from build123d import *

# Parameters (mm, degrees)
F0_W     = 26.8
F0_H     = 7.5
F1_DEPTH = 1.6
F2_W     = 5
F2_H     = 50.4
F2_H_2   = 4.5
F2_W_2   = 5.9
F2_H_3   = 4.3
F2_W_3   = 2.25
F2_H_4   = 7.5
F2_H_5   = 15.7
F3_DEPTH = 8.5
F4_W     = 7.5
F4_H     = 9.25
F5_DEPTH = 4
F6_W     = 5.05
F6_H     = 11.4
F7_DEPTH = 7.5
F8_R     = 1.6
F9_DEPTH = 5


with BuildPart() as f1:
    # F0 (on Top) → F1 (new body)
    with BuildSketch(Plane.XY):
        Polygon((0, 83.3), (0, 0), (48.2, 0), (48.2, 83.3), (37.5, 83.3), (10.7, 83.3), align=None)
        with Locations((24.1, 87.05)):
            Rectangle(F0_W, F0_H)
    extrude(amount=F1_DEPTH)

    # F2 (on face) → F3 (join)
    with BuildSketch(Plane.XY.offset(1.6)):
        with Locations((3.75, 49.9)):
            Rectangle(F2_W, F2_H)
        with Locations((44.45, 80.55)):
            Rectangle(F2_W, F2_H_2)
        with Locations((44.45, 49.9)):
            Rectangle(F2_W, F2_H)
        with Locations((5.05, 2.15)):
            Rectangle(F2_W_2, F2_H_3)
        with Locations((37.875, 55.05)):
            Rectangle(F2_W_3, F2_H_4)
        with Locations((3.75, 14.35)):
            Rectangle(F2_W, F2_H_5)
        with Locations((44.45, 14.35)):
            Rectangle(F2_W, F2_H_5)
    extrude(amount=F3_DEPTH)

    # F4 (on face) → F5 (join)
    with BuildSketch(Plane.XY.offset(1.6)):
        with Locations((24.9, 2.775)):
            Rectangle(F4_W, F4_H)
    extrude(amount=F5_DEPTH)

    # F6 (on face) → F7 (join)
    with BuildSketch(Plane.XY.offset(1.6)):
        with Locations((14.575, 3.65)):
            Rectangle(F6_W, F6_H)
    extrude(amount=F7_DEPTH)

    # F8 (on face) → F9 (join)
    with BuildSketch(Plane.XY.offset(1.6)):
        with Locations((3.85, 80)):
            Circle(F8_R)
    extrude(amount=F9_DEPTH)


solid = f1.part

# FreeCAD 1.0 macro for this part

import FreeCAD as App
import Part
import Sketcher
from FreeCAD import Vector
Q = App.Units.Quantity

doc = App.newDocument("Part")
params = doc.addObject("Spreadsheet::Sheet", "Params")
for row, (alias, value) in enumerate([
    ("sketch1_width", "48.2 mm"),
    ("sketch1_width2", "10.7 mm"),
    ("sketch1_height", "83.3 mm"),
    ("sketch1_height2", "7.5 mm"),
    ("pad1_length", "1.6 mm"),
    ("sketch2_width", "5 mm"),
    ("sketch2_width2", "5.9 mm"),
    ("sketch2_height", "50.4 mm"),
    ("sketch2_height2", "4.5 mm"),
    ("sketch2_height3", "4.3 mm"),
    ("pad2_length", "8.5 mm"),
    ("sketch3_width", "7.5 mm"),
    ("sketch3_height", "9.25 mm"),
    ("pad3_length", "4 mm"),
    ("sketch4_height", "11.4 mm"),
    ("sketch4_width", "5.05 mm"),
    ("pad4_length", "7.5 mm"),
    ("sketch5_diameter", "3.2 mm"),
    ("pad5_length", "5 mm"),
], start=1):
    params.set(f"A{row}", alias)
    params.set(f"B{row}", "=" + value)
    params.setAlias(f"B{row}", alias)

body = doc.addObject("PartDesign::Body", "Body")

# Sketch on XY plane
sketch1 = body.newObject("Sketcher::SketchObject", "Sketch")
sketch1.AttachmentSupport = (doc.getObject("XY_Plane"), [""])
sketch1.MapMode = "FlatFace"
sketch1.addGeometry(Part.LineSegment(Vector(0, 83, 0), Vector(0, 0, 0)), False)
sketch1.addGeometry(Part.LineSegment(Vector(0, 0, 0), Vector(48, 0, 0)), False)
sketch1.addGeometry(Part.LineSegment(Vector(48, 0, 0), Vector(48, 83, 0)), False)
sketch1.addGeometry(Part.LineSegment(Vector(48, 83, 0), Vector(38, 83, 0)), False)
sketch1.addGeometry(Part.LineSegment(Vector(38, 83, 0), Vector(38, 91, 0)), False)
sketch1.addGeometry(Part.LineSegment(Vector(38, 91, 0), Vector(11, 91, 0)), False)
sketch1.addGeometry(Part.LineSegment(Vector(11, 91, 0), Vector(11, 83, 0)), False)
sketch1.addGeometry(Part.LineSegment(Vector(11, 83, 0), Vector(0, 83, 0)), False)
sketch1.addConstraint(Sketcher.Constraint("Coincident", 0, 2, 1, 1))
sketch1.addConstraint(Sketcher.Constraint("Coincident", 1, 2, 2, 1))
sketch1.addConstraint(Sketcher.Constraint("Coincident", 2, 2, 3, 1))
sketch1.addConstraint(Sketcher.Constraint("Coincident", 3, 2, 4, 1))
sketch1.addConstraint(Sketcher.Constraint("Coincident", 4, 2, 5, 1))
sketch1.addConstraint(Sketcher.Constraint("Coincident", 5, 2, 6, 1))
sketch1.addConstraint(Sketcher.Constraint("Coincident", 6, 2, 7, 1))
sketch1.addConstraint(Sketcher.Constraint("Coincident", 7, 2, 0, 1))
sketch1.addConstraint(Sketcher.Constraint("Vertical", 0))
sketch1.addConstraint(Sketcher.Constraint("Horizontal", 1))
sketch1.addConstraint(Sketcher.Constraint("Vertical", 2))
sketch1.addConstraint(Sketcher.Constraint("Horizontal", 3))
sketch1.addConstraint(Sketcher.Constraint("Vertical", 4))
sketch1.addConstraint(Sketcher.Constraint("Horizontal", 5))
sketch1.addConstraint(Sketcher.Constraint("Vertical", 6))
sketch1.addConstraint(Sketcher.Constraint("Horizontal", 7))
sketch1.addConstraint(Sketcher.Constraint("Coincident", 0, 2, -1, 1))
sketch1.addConstraint(Sketcher.Constraint("Horizontal", 3, 2, 6, 2))
sketch1.addConstraint(Sketcher.Constraint("Equal", 3, 7))
sketch1.addConstraint(Sketcher.Constraint("DistanceX", 1, 1, 1, 2, Q("48.2 mm")))
sketch1.addConstraint(Sketcher.Constraint("DistanceX", 3, 2, 3, 1, Q("10.7 mm")))
sketch1.addConstraint(Sketcher.Constraint("DistanceY", 0, 2, 0, 1, Q("83.3 mm")))
sketch1.addConstraint(Sketcher.Constraint("DistanceY", 4, 1, 4, 2, Q("7.5 mm")))
sketch1.setExpression("Constraints[19]", "Params.sketch1_width")
sketch1.setExpression("Constraints[20]", "Params.sketch1_width2")
sketch1.setExpression("Constraints[21]", "Params.sketch1_height")
sketch1.setExpression("Constraints[22]", "Params.sketch1_height2")
pad1 = body.newObject("PartDesign::Pad", "Pad")
pad1.Profile = sketch1
pad1.setExpression("Length", "Params.pad1_length")

# Sketch on XY plane
sketch2 = body.newObject("Sketcher::SketchObject", "Sketch001")
sketch2.AttachmentSupport = (doc.getObject("XY_Plane"), [""])
sketch2.MapMode = "FlatFace"
sketch2.AttachmentOffset = App.Placement(Vector(0, 0, 1.6), App.Rotation())
sketch2.addGeometry(Part.LineSegment(Vector(1.2, 75.1, 0), Vector(1.2, 24.7, 0)), False)
sketch2.addGeometry(Part.LineSegment(Vector(1.2, 24.7, 0), Vector(6.2, 24.7, 0)), False)
sketch2.addGeometry(Part.LineSegment(Vector(6.2, 24.7, 0), Vector(6.2, 75.1, 0)), False)
sketch2.addGeometry(Part.LineSegment(Vector(6.2, 75.1, 0), Vector(1.2, 75.1, 0)), False)
sketch2.addGeometry(Part.LineSegment(Vector(42, 82.8, 0), Vector(42, 78.3, 0)), False)
sketch2.addGeometry(Part.LineSegment(Vector(42, 78.3, 0), Vector(47, 78.3, 0)), False)
sketch2.addGeometry(Part.LineSegment(Vector(47, 78.3, 0), Vector(47, 82.8, 0)), False)
sketch2.addGeometry(Part.LineSegment(Vector(47, 82.8, 0), Vector(42, 82.8, 0)), False)
sketch2.addGeometry(Part.LineSegment(Vector(42, 75.1, 0), Vector(42, 24.7, 0)), False)
sketch2.addGeometry(Part.LineSegment(Vector(42, 24.7, 0), Vector(47, 24.7, 0)), False)
sketch2.addGeometry(Part.LineSegment(Vector(47, 24.7, 0), Vector(47, 75.1, 0)), False)
sketch2.addGeometry(Part.LineSegment(Vector(47, 75.1, 0), Vector(42, 75.1, 0)), False)
sketch2.addGeometry(Part.LineSegment(Vector(2.1, 4.3, 0), Vector(2.1, 0, 0)), False)
sketch2.addGeometry(Part.LineSegment(Vector(2.1, 0, 0), Vector(8, 0, 0)), False)
sketch2.addGeometry(Part.LineSegment(Vector(8, 0, 0), Vector(8, 4.3, 0)), False)
sketch2.addGeometry(Part.LineSegment(Vector(8, 4.3, 0), Vector(2.1, 4.3, 0)), False)
sketch2.addGeometry(Part.LineSegment(Vector(36.8, 58.8, 0), Vector(36.8, 51.3, 0)), False)
sketch2.addGeometry(Part.LineSegment(Vector(36.8, 51.3, 0), Vector(39, 51.3, 0)), False)
sketch2.addGeometry(Part.LineSegment(Vector(39, 51.3, 0), Vector(39, 58.8, 0)), False)
sketch2.addGeometry(Part.LineSegment(Vector(39, 58.8, 0), Vector(36.8, 58.8, 0)), False)
sketch2.addGeometry(Part.LineSegment(Vector(1.2, 22.2, 0), Vector(1.2, 6.5, 0)), False)
sketch2.addGeometry(Part.LineSegment(Vector(1.2, 6.5, 0), Vector(6.2, 6.5, 0)), False)
sketch2.addGeometry(Part.LineSegment(Vector(6.2, 6.5, 0), Vector(6.2, 22.2, 0)), False)
sketch2.addGeometry(Part.LineSegment(Vector(6.2, 22.2, 0), Vector(1.2, 22.2, 0)), False)
sketch2.addGeometry(Part.LineSegment(Vector(42, 22.2, 0), Vector(42, 6.5, 0)), False)
sketch2.addGeometry(Part.LineSegment(Vector(42, 6.5, 0), Vector(47, 6.5, 0)), False)
sketch2.addGeometry(Part.LineSegment(Vector(47, 6.5, 0), Vector(47, 22.2, 0)), False)
sketch2.addGeometry(Part.LineSegment(Vector(47, 22.2, 0), Vector(42, 22.2, 0)), False)
sketch2.addConstraint(Sketcher.Constraint("Coincident", 0, 2, 1, 1))
sketch2.addConstraint(Sketcher.Constraint("Coincident", 1, 2, 2, 1))
sketch2.addConstraint(Sketcher.Constraint("Coincident", 2, 2, 3, 1))
sketch2.addConstraint(Sketcher.Constraint("Coincident", 3, 2, 0, 1))
sketch2.addConstraint(Sketcher.Constraint("Coincident", 4, 2, 5, 1))
sketch2.addConstraint(Sketcher.Constraint("Coincident", 5, 2, 6, 1))
sketch2.addConstraint(Sketcher.Constraint("Coincident", 6, 2, 7, 1))
sketch2.addConstraint(Sketcher.Constraint("Coincident", 7, 2, 4, 1))
sketch2.addConstraint(Sketcher.Constraint("Coincident", 8, 2, 9, 1))
sketch2.addConstraint(Sketcher.Constraint("Coincident", 9, 2, 10, 1))
sketch2.addConstraint(Sketcher.Constraint("Coincident", 10, 2, 11, 1))
sketch2.addConstraint(Sketcher.Constraint("Coincident", 11, 2, 8, 1))
sketch2.addConstraint(Sketcher.Constraint("Coincident", 12, 2, 13, 1))
sketch2.addConstraint(Sketcher.Constraint("Coincident", 13, 2, 14, 1))
sketch2.addConstraint(Sketcher.Constraint("Coincident", 14, 2, 15, 1))
sketch2.addConstraint(Sketcher.Constraint("Coincident", 15, 2, 12, 1))
sketch2.addConstraint(Sketcher.Constraint("Coincident", 16, 2, 17, 1))
sketch2.addConstraint(Sketcher.Constraint("Coincident", 17, 2, 18, 1))
sketch2.addConstraint(Sketcher.Constraint("Coincident", 18, 2, 19, 1))
sketch2.addConstraint(Sketcher.Constraint("Coincident", 19, 2, 16, 1))
sketch2.addConstraint(Sketcher.Constraint("Coincident", 20, 2, 21, 1))
sketch2.addConstraint(Sketcher.Constraint("Coincident", 21, 2, 22, 1))
sketch2.addConstraint(Sketcher.Constraint("Coincident", 22, 2, 23, 1))
sketch2.addConstraint(Sketcher.Constraint("Coincident", 23, 2, 20, 1))
sketch2.addConstraint(Sketcher.Constraint("Coincident", 24, 2, 25, 1))
sketch2.addConstraint(Sketcher.Constraint("Coincident", 25, 2, 26, 1))
sketch2.addConstraint(Sketcher.Constraint("Coincident", 26, 2, 27, 1))
sketch2.addConstraint(Sketcher.Constraint("Coincident", 27, 2, 24, 1))
sketch2.addConstraint(Sketcher.Constraint("Vertical", 0))
sketch2.addConstraint(Sketcher.Constraint("Horizontal", 1))
sketch2.addConstraint(Sketcher.Constraint("Vertical", 2))
sketch2.addConstraint(Sketcher.Constraint("Horizontal", 3))
sketch2.addConstraint(Sketcher.Constraint("Vertical", 4))
sketch2.addConstraint(Sketcher.Constraint("Horizontal", 5))
sketch2.addConstraint(Sketcher.Constraint("Vertical", 6))
sketch2.addConstraint(Sketcher.Constraint("Horizontal", 7))
sketch2.addConstraint(Sketcher.Constraint("Vertical", 8))
sketch2.addConstraint(Sketcher.Constraint("Horizontal", 9))
sketch2.addConstraint(Sketcher.Constraint("Vertical", 10))
sketch2.addConstraint(Sketcher.Constraint("Horizontal", 11))
sketch2.addConstraint(Sketcher.Constraint("Vertical", 12))
sketch2.addConstraint(Sketcher.Constraint("Horizontal", 13))
sketch2.addConstraint(Sketcher.Constraint("Vertical", 14))
sketch2.addConstraint(Sketcher.Constraint("Horizontal", 15))
sketch2.addConstraint(Sketcher.Constraint("Vertical", 16))
sketch2.addConstraint(Sketcher.Constraint("Horizontal", 17))
sketch2.addConstraint(Sketcher.Constraint("Vertical", 18))
sketch2.addConstraint(Sketcher.Constraint("Horizontal", 19))
sketch2.addConstraint(Sketcher.Constraint("Vertical", 20))
sketch2.addConstraint(Sketcher.Constraint("Horizontal", 21))
sketch2.addConstraint(Sketcher.Constraint("Vertical", 22))
sketch2.addConstraint(Sketcher.Constraint("Horizontal", 23))
sketch2.addConstraint(Sketcher.Constraint("Vertical", 24))
sketch2.addConstraint(Sketcher.Constraint("Horizontal", 25))
sketch2.addConstraint(Sketcher.Constraint("Vertical", 26))
sketch2.addConstraint(Sketcher.Constraint("Horizontal", 27))
sketch2.addConstraint(Sketcher.Constraint("PointOnObject", 12, 2, -1))
sketch2.addConstraint(Sketcher.Constraint("Horizontal", 1, 2, 8, 2))
sketch2.addConstraint(Sketcher.Constraint("Horizontal", 3, 2, 10, 2))
sketch2.addConstraint(Sketcher.Constraint("Horizontal", 21, 2, 24, 2))
sketch2.addConstraint(Sketcher.Constraint("Horizontal", 23, 2, 26, 2))
sketch2.addConstraint(Sketcher.Constraint("Vertical", 7, 2, 8, 2))
sketch2.addConstraint(Sketcher.Constraint("Vertical", 6, 2, 9, 2))
sketch2.addConstraint(Sketcher.Constraint("Vertical", 3, 2, 20, 2))
sketch2.addConstraint(Sketcher.Constraint("Vertical", 2, 2, 21, 2))
sketch2.addConstraint(Sketcher.Constraint("Vertical", 11, 2, 24, 2))
sketch2.addConstraint(Sketcher.Constraint("Vertical", 10, 2, 25, 2))
sketch2.addConstraint(Sketcher.Constraint("Equal", 3, 5))
sketch2.addConstraint(Sketcher.Constraint("DistanceX", 1, 1, 1, 2, Q("5 mm")))
sketch2.addConstraint(Sketcher.Constraint("DistanceX", 13, 1, 13, 2, Q("5.9 mm")))
sketch2.addConstraint(Sketcher.Constraint("DistanceY", 0, 2, 0, 1, Q("50.4 mm")))
sketch2.addConstraint(Sketcher.Constraint("DistanceY", 4, 2, 4, 1, Q("4.5 mm")))
sketch2.addConstraint(Sketcher.Constraint("DistanceY", 12, 2, 12, 1, Q("4.3 mm")))
sketch2.addConstraint(Sketcher.Constraint("DistanceY", 16, 2, 16, 1, Q("7.5 mm")))
sketch2.addConstraint(Sketcher.Constraint("DistanceY", 20, 2, 20, 1, Q("15.7 mm")))
sketch2.addConstraint(Sketcher.Constraint("DistanceX", -1, 1, 13, 2, Q("8 mm")))
sketch2.addConstraint(Sketcher.Constraint("DistanceX", -1, 1, 17, 2, Q("39 mm")))
sketch2.addConstraint(Sketcher.Constraint("DistanceY", 16, 2, 4, 2, Q("27 mm")))
sketch2.addConstraint(Sketcher.Constraint("DistanceX", 17, 1, 17, 2, Q("2.25 mm")))
sketch2.addConstraint(Sketcher.Constraint("DistanceY", -1, 1, 0, 2, Q("24.7 mm")))
sketch2.addConstraint(Sketcher.Constraint("DistanceY", -1, 1, 4, 2, Q("78.3 mm")))
sketch2.addConstraint(Sketcher.Constraint("DistanceY", -1, 1, 20, 2, Q("6.5 mm")))
sketch2.addConstraint(Sketcher.Constraint("DistanceX", 2, 2, 4, 2, Q("35.7 mm")))
sketch2.addConstraint(Sketcher.Constraint("DistanceX", 16, 2, 11, 2, Q("5.2 mm")))
sketch2.setExpression("Constraints[68]", "Params.sketch2_width")
sketch2.setExpression("Constraints[69]", "Params.sketch2_width2")
sketch2.setExpression("Constraints[70]", "Params.sketch2_height")
sketch2.setExpression("Constraints[71]", "Params.sketch2_height2")
sketch2.setExpression("Constraints[72]", "Params.sketch2_height3")
pad2 = body.newObject("PartDesign::Pad", "Pad001")
pad2.Profile = sketch2
pad2.setExpression("Length", "Params.pad2_length")

# Sketch on XY plane
sketch3 = body.newObject("Sketcher::SketchObject", "Sketch002")
sketch3.AttachmentSupport = (doc.getObject("XY_Plane"), [""])
sketch3.MapMode = "FlatFace"
sketch3.AttachmentOffset = App.Placement(Vector(0, 0, 1.6), App.Rotation())
sketch3.addGeometry(Part.LineSegment(Vector(21, 7, 0), Vector(21, -2, 0)), False)
sketch3.addGeometry(Part.LineSegment(Vector(21, -2, 0), Vector(29, -2, 0)), False)
sketch3.addGeometry(Part.LineSegment(Vector(29, -2, 0), Vector(29, 7, 0)), False)
sketch3.addGeometry(Part.LineSegment(Vector(29, 7, 0), Vector(21, 7, 0)), False)
sketch3.addConstraint(Sketcher.Constraint("Coincident", 0, 2, 1, 1))
sketch3.addConstraint(Sketcher.Constraint("Coincident", 1, 2, 2, 1))
sketch3.addConstraint(Sketcher.Constraint("Coincident", 2, 2, 3, 1))
sketch3.addConstraint(Sketcher.Constraint("Coincident", 3, 2, 0, 1))
sketch3.addConstraint(Sketcher.Constraint("Vertical", 0))
sketch3.addConstraint(Sketcher.Constraint("Horizontal", 1))
sketch3.addConstraint(Sketcher.Constraint("Vertical", 2))
sketch3.addConstraint(Sketcher.Constraint("Horizontal", 3))
sketch3.addConstraint(Sketcher.Constraint("DistanceX", 1, 1, 1, 2, Q("7.5 mm")))
sketch3.addConstraint(Sketcher.Constraint("DistanceY", 0, 2, 0, 1, Q("9.25 mm")))
sketch3.addConstraint(Sketcher.Constraint("DistanceY", -1, 1, 2, 2, Q("7.4 mm")))
sketch3.addConstraint(Sketcher.Constraint("DistanceX", -1, 1, 0, 2, Q("21.15 mm")))
sketch3.setExpression("Constraints[8]", "Params.sketch3_width")
sketch3.setExpression("Constraints[9]", "Params.sketch3_height")
pad3 = body.newObject("PartDesign::Pad", "Pad002")
pad3.Profile = sketch3
pad3.setExpression("Length", "Params.pad3_length")

# Sketch on XY plane
sketch4 = body.newObject("Sketcher::SketchObject", "Sketch003")
sketch4.AttachmentSupport = (doc.getObject("XY_Plane"), [""])
sketch4.MapMode = "FlatFace"
sketch4.AttachmentOffset = App.Placement(Vector(0, 0, 1.6), App.Rotation())
sketch4.addGeometry(Part.LineSegment(Vector(12, 9, 0), Vector(12, -2, 0)), False)
sketch4.addGeometry(Part.LineSegment(Vector(12, -2, 0), Vector(17, -2, 0)), False)
sketch4.addGeometry(Part.LineSegment(Vector(17, -2, 0), Vector(17, 9, 0)), False)
sketch4.addGeometry(Part.LineSegment(Vector(17, 9, 0), Vector(12, 9, 0)), False)
sketch4.addConstraint(Sketcher.Constraint("Coincident", 0, 2, 1, 1))
sketch4.addConstraint(Sketcher.Constraint("Coincident", 1, 2, 2, 1))
sketch4.addConstraint(Sketcher.Constraint("Coincident", 2, 2, 3, 1))
sketch4.addConstraint(Sketcher.Constraint("Coincident", 3, 2, 0, 1))
sketch4.addConstraint(Sketcher.Constraint("Vertical", 0))
sketch4.addConstraint(Sketcher.Constraint("Horizontal", 1))
sketch4.addConstraint(Sketcher.Constraint("Vertical", 2))
sketch4.addConstraint(Sketcher.Constraint("Horizontal", 3))
sketch4.addConstraint(Sketcher.Constraint("DistanceY", 0, 2, 0, 1, Q("11.4 mm")))
sketch4.addConstraint(Sketcher.Constraint("DistanceX", 1, 1, 1, 2, Q("5.05 mm")))
sketch4.addConstraint(Sketcher.Constraint("DistanceX", -1, 1, 1, 2, Q("17.1 mm")))
sketch4.addConstraint(Sketcher.Constraint("DistanceY", 0, 2, -1, 1, Q("2.05 mm")))
sketch4.setExpression("Constraints[8]", "Params.sketch4_height")
sketch4.setExpression("Constraints[9]", "Params.sketch4_width")
pad4 = body.newObject("PartDesign::Pad", "Pad003")
pad4.Profile = sketch4
pad4.setExpression("Length", "Params.pad4_length")

# Sketch on XY plane
sketch5 = body.newObject("Sketcher::SketchObject", "Sketch004")
sketch5.AttachmentSupport = (doc.getObject("XY_Plane"), [""])
sketch5.MapMode = "FlatFace"
sketch5.AttachmentOffset = App.Placement(Vector(0, 0, 1.6), App.Rotation())
sketch5.addGeometry(Part.Circle(Vector(3.9, 80, 0), Vector(0, 0, 1), 1.6), False)
sketch5.addConstraint(Sketcher.Constraint("Diameter", 0, Q("3.2 mm")))
sketch5.addConstraint(Sketcher.Constraint("DistanceY", -1, 1, 0, 3, Q("80 mm")))
sketch5.addConstraint(Sketcher.Constraint("DistanceX", -1, 1, 0, 3, Q("3.85 mm")))
sketch5.setExpression("Constraints[0]", "Params.sketch5_diameter")
pad5 = body.newObject("PartDesign::Pad", "Pad004")
pad5.Profile = sketch5
pad5.setExpression("Length", "Params.pad5_length")

doc.recompute()
